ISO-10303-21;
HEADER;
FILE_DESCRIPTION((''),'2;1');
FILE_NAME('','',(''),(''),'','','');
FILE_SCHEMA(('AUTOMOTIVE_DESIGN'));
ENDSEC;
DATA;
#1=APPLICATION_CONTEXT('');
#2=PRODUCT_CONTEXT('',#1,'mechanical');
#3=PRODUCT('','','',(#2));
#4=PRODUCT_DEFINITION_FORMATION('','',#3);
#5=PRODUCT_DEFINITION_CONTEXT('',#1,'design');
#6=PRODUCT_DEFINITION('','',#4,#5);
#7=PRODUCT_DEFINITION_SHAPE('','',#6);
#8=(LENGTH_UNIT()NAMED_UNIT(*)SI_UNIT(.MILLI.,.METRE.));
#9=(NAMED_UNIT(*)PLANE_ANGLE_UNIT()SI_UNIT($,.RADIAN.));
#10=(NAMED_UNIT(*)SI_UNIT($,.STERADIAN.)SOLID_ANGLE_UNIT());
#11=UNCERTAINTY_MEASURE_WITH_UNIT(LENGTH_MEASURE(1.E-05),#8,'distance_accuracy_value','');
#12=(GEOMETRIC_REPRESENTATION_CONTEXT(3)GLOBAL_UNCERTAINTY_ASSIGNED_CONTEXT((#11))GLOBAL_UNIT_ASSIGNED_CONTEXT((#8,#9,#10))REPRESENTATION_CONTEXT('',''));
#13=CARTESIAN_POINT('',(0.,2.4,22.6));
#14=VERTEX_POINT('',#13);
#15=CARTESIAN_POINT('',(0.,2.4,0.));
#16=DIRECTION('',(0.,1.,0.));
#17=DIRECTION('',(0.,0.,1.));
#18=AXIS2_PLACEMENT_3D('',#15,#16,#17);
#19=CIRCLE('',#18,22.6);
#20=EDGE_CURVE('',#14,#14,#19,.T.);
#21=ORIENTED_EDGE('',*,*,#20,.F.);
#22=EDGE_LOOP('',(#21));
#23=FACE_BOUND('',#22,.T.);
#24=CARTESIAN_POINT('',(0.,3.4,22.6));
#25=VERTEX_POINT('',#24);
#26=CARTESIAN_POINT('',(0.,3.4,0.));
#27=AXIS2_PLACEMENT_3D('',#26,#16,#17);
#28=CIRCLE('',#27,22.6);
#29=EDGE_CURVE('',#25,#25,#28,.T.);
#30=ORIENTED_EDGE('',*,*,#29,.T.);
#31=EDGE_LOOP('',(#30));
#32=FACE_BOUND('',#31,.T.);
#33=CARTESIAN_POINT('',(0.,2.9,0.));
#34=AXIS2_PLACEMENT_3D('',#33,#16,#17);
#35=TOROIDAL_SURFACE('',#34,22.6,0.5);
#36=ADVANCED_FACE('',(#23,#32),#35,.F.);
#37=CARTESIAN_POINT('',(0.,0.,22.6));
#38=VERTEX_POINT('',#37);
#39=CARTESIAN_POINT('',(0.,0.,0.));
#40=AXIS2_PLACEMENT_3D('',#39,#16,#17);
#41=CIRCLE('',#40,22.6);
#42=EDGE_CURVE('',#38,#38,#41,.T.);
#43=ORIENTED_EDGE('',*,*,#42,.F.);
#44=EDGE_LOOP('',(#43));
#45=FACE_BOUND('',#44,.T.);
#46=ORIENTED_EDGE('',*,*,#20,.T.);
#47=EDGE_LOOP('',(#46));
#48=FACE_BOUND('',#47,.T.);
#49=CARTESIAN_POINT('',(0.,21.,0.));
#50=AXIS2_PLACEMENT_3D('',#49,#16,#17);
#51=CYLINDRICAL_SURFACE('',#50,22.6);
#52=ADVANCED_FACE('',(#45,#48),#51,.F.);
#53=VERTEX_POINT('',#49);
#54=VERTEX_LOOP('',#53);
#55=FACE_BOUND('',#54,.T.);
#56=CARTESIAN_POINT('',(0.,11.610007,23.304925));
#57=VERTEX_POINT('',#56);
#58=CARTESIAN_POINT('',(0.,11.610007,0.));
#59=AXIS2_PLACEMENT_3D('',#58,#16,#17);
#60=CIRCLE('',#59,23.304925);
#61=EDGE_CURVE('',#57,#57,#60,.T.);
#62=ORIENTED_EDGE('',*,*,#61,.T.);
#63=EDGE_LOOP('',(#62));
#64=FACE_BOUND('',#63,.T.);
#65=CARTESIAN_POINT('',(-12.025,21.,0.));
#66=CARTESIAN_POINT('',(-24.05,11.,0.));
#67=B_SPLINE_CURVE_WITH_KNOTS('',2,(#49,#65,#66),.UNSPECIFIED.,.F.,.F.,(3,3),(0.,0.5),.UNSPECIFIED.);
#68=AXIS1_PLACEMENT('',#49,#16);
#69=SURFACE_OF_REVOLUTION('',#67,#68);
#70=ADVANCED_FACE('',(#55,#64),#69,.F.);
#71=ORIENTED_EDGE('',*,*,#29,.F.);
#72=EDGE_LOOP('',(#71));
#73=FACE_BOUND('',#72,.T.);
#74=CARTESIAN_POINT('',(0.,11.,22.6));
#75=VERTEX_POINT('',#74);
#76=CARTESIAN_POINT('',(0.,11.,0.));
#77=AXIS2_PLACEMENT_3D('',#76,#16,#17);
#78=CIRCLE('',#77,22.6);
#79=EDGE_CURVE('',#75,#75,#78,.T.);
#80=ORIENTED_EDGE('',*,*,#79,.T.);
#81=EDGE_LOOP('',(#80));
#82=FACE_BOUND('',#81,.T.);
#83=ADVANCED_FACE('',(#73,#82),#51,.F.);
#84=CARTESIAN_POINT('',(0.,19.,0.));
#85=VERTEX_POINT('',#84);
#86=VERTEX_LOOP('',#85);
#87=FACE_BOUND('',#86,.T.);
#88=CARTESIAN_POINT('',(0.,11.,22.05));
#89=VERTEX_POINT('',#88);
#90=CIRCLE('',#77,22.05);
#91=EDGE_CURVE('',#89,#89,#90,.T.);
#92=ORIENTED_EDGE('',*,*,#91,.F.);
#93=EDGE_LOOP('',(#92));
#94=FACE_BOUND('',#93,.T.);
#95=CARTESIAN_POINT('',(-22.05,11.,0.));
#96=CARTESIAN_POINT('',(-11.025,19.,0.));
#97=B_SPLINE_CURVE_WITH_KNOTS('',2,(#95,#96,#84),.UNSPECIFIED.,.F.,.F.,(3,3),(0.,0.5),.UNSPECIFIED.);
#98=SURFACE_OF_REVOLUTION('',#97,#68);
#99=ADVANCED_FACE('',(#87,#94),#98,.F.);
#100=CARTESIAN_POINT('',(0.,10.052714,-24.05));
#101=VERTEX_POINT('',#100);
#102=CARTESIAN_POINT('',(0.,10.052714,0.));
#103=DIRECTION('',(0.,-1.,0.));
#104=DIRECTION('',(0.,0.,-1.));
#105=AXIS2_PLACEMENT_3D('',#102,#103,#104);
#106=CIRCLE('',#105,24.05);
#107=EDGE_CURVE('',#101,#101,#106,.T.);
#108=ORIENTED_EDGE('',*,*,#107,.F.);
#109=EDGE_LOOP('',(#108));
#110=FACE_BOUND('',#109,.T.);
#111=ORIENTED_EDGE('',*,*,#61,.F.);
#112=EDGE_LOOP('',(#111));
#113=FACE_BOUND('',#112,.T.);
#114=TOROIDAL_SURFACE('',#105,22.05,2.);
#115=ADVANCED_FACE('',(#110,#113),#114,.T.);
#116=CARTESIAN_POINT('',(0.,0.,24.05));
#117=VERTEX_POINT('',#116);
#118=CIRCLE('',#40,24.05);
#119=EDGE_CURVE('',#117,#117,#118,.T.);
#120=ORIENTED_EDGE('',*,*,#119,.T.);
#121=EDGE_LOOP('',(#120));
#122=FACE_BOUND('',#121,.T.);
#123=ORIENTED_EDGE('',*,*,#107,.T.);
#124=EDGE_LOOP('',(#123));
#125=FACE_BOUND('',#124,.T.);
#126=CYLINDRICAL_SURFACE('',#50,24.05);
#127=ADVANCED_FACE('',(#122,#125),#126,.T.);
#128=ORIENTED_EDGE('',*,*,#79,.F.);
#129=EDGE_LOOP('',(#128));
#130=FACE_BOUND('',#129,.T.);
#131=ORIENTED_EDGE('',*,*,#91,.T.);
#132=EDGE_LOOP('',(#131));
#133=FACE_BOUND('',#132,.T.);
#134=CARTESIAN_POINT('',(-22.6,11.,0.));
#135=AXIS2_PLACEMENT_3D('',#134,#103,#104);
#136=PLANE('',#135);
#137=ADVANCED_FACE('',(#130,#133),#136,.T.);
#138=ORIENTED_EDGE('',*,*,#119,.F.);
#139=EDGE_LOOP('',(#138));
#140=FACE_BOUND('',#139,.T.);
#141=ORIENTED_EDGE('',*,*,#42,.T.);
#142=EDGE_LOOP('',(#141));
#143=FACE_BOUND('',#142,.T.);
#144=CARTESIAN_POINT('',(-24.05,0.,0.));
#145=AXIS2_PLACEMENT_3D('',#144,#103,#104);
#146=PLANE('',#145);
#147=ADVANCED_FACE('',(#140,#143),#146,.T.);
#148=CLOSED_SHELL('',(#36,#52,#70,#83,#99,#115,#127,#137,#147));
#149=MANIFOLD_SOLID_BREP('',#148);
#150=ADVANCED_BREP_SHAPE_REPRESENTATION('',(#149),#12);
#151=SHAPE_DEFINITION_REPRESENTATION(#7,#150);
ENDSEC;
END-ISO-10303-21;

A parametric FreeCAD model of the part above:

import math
import FreeCAD as App
import Part
import Sketcher
from FreeCAD import Vector
Q = App.Units.Quantity


def edges_at(feature, points):
    """Names of the edges that pass closest to the given points."""
    edges = feature.Shape.Edges
    near = lambda p: min(range(len(edges)), key=lambda i: edges[i].distToShape(Part.Vertex(*p))[0])
    return sorted({f"Edge{near(p) + 1}" for p in points})

doc = App.newDocument("Part")
body = doc.addObject("PartDesign::Body", "Body")

# Sketch on XY plane
sketch1 = body.newObject("Sketcher::SketchObject", "Sketch")
sketch1.AttachmentSupport = (doc.getObject("XY_Plane"), [""])
sketch1.MapMode = "FlatFace"
sketch1.addGeometry(Part.LineSegment(Vector(-24.05, 0, 0), Vector(-22.6, 0, 0)), False)
sketch1.addGeometry(Part.LineSegment(Vector(-22.6, 0, 0), Vector(-22.6, 2.4, 0)), False)
sketch1.addGeometry(Part.ArcOfCircle(Part.Circle(Vector(-22.6, 2.9, 0), Vector(0, 0, 1), 0.5), math.radians(90), math.radians(270)), False)
sketch1.addGeometry(Part.LineSegment(Vector(-22.6, 3.4, 0), Vector(-22.6, 11, 0)), False)
sketch1.addGeometry(Part.LineSegment(Vector(-22.6, 11, 0), Vector(-22.05, 11, 0)), False)
sketch1.addGeometry(Part.BSplineCurve([Vector(-22.05, 11, 0), Vector(-11.025, 19, 0), Vector(0, 19, 0)], [3, 3], [0, 0.5], False, 2, [1, 1, 1], False), False)
sketch1.addGeometry(Part.LineSegment(Vector(0, 19, 0), Vector(0, 21, 0)), False)
sketch1.addGeometry(Part.BSplineCurve([Vector(-24.05, 11, 0), Vector(-12.025, 21, 0), Vector(0, 21, 0)], [3, 3], [0, 0.5], False, 2, [1, 1, 1], False), False)
sketch1.addGeometry(Part.LineSegment(Vector(-24.05, 11, 0), Vector(-24.05, 0, 0)), False)
sketch1.addConstraint(Sketcher.Constraint("Block", 5))
sketch1.addConstraint(Sketcher.Constraint("Block", 7))
sketch1.addConstraint(Sketcher.Constraint("Coincident", 0, 2, 1, 1))
sketch1.addConstraint(Sketcher.Constraint("Coincident", 1, 2, 2, 2))
sketch1.addConstraint(Sketcher.Constraint("Coincident", 2, 1, 3, 1))
sketch1.addConstraint(Sketcher.Constraint("Coincident", 3, 2, 4, 1))
sketch1.addConstraint(Sketcher.Constraint("Coincident", 4, 2, 5, 1))
sketch1.addConstraint(Sketcher.Constraint("Coincident", 5, 2, 6, 1))
sketch1.addConstraint(Sketcher.Constraint("Coincident", 6, 2, 7, 2))
sketch1.addConstraint(Sketcher.Constraint("Coincident", 7, 1, 8, 1))
sketch1.addConstraint(Sketcher.Constraint("Coincident", 8, 2, 0, 1))
sketch1.addConstraint(Sketcher.Constraint("Horizontal", 0))
sketch1.addConstraint(Sketcher.Constraint("Vertical", 1))
sketch1.addConstraint(Sketcher.Constraint("Vertical", 3))
sketch1.addConstraint(Sketcher.Constraint("Horizontal", 4))
sketch1.addConstraint(Sketcher.Constraint("Vertical", 8))
sketch1.addConstraint(Sketcher.Constraint("PointOnObject", 0, 2, -1))
sketch1.addConstraint(Sketcher.Constraint("Vertical", 2, 3, 0, 2))
sketch1.addConstraint(Sketcher.Constraint("Vertical", 1, 2, 2, 1))
sketch1.addConstraint(Sketcher.Constraint("Radius", 2, Q("0.5 mm")))
sketch1.addConstraint(Sketcher.Constraint("DistanceY", 1, 1, 1, 2, Q("2.4 mm")))
sketch1.addConstraint(Sketcher.Constraint("DistanceX", 0, 1, 0, 2, Q("1.45 mm")))
revolution = body.newObject("PartDesign::Revolution", "Revolution")
revolution.Profile = sketch1
revolution.ReferenceAxis = (sketch1, ["V_Axis"])
revolution.Angle = 360
doc.recompute()

fillet = body.newObject("PartDesign::Fillet", "Fillet")
fillet.Base = (revolution, edges_at(revolution, [(0, 11, -24.05)]))
fillet.Radius = 2

doc.recompute()
